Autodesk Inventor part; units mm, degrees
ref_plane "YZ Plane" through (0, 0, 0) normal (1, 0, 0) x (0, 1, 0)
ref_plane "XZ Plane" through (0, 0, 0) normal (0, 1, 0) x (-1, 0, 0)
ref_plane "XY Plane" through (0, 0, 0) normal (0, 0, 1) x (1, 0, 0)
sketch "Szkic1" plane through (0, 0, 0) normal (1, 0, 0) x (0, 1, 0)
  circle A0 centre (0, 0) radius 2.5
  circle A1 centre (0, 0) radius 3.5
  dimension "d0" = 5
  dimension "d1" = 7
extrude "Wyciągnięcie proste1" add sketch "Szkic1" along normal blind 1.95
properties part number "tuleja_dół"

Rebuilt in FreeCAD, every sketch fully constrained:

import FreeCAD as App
import Part
import Sketcher
Q = App.Units.Quantity

doc = App.newDocument("Part")
body = doc.addObject("PartDesign::Body", "Body")

# Sketch on YZ plane
sketch1 = body.newObject("Sketcher::SketchObject", "Sketch")
sketch1.AttachmentSupport = (doc.getObject("YZ_Plane"), [""])
sketch1.MapMode = "FlatFace"
sketch1.addGeometry(Part.Circle(App.Vector(0, 0, 0), App.Vector(0, 0, 1), 3.5), False)
sketch1.addGeometry(Part.Circle(App.Vector(0, 0, 0), App.Vector(0, 0, 1), 2.5), False)
sketch1.addConstraint(Sketcher.Constraint("Coincident", 0, 3, -1, 1))
sketch1.addConstraint(Sketcher.Constraint("Coincident", 1, 3, -1, 1))
sketch1.addConstraint(Sketcher.Constraint("Diameter", 0, Q("7 mm")))
sketch1.addConstraint(Sketcher.Constraint("Diameter", 1, Q("5 mm")))
pad1 = body.newObject("PartDesign::Pad", "Pad")
pad1.Profile = sketch1
pad1.Length = 1.95

doc.recompute()
